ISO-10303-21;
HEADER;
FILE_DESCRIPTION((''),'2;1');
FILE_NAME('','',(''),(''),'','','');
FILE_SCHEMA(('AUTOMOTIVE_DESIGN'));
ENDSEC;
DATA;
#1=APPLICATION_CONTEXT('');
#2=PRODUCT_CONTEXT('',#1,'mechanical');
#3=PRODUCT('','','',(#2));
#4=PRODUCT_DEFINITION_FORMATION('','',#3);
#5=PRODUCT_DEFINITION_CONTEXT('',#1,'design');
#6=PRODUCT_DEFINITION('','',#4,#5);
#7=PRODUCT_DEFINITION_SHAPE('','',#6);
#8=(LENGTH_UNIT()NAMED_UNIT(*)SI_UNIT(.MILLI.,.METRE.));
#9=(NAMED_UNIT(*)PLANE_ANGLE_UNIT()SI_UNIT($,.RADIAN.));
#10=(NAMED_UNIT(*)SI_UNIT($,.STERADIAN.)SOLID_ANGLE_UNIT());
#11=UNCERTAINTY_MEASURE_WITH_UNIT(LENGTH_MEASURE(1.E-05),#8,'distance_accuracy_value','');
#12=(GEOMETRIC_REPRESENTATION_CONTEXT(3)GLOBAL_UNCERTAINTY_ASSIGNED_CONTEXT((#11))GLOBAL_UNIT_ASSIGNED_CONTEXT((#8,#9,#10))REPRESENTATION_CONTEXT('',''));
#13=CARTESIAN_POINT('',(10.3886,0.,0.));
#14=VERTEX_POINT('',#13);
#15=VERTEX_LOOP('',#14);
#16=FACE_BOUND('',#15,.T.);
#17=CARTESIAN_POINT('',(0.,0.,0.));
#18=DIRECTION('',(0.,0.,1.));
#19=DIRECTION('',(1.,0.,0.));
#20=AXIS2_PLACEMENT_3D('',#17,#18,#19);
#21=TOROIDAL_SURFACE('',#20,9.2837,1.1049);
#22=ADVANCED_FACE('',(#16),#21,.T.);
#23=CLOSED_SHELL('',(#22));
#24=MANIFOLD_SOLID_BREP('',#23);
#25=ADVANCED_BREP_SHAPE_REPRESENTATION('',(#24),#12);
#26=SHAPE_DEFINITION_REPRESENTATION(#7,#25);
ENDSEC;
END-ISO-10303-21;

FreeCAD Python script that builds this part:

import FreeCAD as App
import Part
import Sketcher
Q = App.Units.Quantity

doc = App.newDocument("Part")
body = doc.addObject("PartDesign::Body", "Body")

sketch1 = body.newObject("Sketcher::SketchObject", "Sketch")
sketch1.AttachmentSupport = (doc.getObject("YZ_Plane"), [""])
sketch1.MapMode = "FlatFace"
sketch1.addGeometry(Part.Circle(App.Vector(-9.3, 0, 0), App.Vector(0, 0, 1), 1.1), False)
sketch1.addConstraint([
    Sketcher.Constraint("PointOnObject", 0, 3, -1),
    Sketcher.Constraint("Diameter", 0, Q("0.087 in")),
    Sketcher.Constraint("DistanceX", 0, 3, -1, 1, Q("0.3655 in")),
])
revolution = body.newObject("PartDesign::Revolution", "Revolution")
revolution.Profile = sketch1
revolution.ReferenceAxis = (sketch1, ["V_Axis"])
revolution.Angle = 360

doc.recompute()
